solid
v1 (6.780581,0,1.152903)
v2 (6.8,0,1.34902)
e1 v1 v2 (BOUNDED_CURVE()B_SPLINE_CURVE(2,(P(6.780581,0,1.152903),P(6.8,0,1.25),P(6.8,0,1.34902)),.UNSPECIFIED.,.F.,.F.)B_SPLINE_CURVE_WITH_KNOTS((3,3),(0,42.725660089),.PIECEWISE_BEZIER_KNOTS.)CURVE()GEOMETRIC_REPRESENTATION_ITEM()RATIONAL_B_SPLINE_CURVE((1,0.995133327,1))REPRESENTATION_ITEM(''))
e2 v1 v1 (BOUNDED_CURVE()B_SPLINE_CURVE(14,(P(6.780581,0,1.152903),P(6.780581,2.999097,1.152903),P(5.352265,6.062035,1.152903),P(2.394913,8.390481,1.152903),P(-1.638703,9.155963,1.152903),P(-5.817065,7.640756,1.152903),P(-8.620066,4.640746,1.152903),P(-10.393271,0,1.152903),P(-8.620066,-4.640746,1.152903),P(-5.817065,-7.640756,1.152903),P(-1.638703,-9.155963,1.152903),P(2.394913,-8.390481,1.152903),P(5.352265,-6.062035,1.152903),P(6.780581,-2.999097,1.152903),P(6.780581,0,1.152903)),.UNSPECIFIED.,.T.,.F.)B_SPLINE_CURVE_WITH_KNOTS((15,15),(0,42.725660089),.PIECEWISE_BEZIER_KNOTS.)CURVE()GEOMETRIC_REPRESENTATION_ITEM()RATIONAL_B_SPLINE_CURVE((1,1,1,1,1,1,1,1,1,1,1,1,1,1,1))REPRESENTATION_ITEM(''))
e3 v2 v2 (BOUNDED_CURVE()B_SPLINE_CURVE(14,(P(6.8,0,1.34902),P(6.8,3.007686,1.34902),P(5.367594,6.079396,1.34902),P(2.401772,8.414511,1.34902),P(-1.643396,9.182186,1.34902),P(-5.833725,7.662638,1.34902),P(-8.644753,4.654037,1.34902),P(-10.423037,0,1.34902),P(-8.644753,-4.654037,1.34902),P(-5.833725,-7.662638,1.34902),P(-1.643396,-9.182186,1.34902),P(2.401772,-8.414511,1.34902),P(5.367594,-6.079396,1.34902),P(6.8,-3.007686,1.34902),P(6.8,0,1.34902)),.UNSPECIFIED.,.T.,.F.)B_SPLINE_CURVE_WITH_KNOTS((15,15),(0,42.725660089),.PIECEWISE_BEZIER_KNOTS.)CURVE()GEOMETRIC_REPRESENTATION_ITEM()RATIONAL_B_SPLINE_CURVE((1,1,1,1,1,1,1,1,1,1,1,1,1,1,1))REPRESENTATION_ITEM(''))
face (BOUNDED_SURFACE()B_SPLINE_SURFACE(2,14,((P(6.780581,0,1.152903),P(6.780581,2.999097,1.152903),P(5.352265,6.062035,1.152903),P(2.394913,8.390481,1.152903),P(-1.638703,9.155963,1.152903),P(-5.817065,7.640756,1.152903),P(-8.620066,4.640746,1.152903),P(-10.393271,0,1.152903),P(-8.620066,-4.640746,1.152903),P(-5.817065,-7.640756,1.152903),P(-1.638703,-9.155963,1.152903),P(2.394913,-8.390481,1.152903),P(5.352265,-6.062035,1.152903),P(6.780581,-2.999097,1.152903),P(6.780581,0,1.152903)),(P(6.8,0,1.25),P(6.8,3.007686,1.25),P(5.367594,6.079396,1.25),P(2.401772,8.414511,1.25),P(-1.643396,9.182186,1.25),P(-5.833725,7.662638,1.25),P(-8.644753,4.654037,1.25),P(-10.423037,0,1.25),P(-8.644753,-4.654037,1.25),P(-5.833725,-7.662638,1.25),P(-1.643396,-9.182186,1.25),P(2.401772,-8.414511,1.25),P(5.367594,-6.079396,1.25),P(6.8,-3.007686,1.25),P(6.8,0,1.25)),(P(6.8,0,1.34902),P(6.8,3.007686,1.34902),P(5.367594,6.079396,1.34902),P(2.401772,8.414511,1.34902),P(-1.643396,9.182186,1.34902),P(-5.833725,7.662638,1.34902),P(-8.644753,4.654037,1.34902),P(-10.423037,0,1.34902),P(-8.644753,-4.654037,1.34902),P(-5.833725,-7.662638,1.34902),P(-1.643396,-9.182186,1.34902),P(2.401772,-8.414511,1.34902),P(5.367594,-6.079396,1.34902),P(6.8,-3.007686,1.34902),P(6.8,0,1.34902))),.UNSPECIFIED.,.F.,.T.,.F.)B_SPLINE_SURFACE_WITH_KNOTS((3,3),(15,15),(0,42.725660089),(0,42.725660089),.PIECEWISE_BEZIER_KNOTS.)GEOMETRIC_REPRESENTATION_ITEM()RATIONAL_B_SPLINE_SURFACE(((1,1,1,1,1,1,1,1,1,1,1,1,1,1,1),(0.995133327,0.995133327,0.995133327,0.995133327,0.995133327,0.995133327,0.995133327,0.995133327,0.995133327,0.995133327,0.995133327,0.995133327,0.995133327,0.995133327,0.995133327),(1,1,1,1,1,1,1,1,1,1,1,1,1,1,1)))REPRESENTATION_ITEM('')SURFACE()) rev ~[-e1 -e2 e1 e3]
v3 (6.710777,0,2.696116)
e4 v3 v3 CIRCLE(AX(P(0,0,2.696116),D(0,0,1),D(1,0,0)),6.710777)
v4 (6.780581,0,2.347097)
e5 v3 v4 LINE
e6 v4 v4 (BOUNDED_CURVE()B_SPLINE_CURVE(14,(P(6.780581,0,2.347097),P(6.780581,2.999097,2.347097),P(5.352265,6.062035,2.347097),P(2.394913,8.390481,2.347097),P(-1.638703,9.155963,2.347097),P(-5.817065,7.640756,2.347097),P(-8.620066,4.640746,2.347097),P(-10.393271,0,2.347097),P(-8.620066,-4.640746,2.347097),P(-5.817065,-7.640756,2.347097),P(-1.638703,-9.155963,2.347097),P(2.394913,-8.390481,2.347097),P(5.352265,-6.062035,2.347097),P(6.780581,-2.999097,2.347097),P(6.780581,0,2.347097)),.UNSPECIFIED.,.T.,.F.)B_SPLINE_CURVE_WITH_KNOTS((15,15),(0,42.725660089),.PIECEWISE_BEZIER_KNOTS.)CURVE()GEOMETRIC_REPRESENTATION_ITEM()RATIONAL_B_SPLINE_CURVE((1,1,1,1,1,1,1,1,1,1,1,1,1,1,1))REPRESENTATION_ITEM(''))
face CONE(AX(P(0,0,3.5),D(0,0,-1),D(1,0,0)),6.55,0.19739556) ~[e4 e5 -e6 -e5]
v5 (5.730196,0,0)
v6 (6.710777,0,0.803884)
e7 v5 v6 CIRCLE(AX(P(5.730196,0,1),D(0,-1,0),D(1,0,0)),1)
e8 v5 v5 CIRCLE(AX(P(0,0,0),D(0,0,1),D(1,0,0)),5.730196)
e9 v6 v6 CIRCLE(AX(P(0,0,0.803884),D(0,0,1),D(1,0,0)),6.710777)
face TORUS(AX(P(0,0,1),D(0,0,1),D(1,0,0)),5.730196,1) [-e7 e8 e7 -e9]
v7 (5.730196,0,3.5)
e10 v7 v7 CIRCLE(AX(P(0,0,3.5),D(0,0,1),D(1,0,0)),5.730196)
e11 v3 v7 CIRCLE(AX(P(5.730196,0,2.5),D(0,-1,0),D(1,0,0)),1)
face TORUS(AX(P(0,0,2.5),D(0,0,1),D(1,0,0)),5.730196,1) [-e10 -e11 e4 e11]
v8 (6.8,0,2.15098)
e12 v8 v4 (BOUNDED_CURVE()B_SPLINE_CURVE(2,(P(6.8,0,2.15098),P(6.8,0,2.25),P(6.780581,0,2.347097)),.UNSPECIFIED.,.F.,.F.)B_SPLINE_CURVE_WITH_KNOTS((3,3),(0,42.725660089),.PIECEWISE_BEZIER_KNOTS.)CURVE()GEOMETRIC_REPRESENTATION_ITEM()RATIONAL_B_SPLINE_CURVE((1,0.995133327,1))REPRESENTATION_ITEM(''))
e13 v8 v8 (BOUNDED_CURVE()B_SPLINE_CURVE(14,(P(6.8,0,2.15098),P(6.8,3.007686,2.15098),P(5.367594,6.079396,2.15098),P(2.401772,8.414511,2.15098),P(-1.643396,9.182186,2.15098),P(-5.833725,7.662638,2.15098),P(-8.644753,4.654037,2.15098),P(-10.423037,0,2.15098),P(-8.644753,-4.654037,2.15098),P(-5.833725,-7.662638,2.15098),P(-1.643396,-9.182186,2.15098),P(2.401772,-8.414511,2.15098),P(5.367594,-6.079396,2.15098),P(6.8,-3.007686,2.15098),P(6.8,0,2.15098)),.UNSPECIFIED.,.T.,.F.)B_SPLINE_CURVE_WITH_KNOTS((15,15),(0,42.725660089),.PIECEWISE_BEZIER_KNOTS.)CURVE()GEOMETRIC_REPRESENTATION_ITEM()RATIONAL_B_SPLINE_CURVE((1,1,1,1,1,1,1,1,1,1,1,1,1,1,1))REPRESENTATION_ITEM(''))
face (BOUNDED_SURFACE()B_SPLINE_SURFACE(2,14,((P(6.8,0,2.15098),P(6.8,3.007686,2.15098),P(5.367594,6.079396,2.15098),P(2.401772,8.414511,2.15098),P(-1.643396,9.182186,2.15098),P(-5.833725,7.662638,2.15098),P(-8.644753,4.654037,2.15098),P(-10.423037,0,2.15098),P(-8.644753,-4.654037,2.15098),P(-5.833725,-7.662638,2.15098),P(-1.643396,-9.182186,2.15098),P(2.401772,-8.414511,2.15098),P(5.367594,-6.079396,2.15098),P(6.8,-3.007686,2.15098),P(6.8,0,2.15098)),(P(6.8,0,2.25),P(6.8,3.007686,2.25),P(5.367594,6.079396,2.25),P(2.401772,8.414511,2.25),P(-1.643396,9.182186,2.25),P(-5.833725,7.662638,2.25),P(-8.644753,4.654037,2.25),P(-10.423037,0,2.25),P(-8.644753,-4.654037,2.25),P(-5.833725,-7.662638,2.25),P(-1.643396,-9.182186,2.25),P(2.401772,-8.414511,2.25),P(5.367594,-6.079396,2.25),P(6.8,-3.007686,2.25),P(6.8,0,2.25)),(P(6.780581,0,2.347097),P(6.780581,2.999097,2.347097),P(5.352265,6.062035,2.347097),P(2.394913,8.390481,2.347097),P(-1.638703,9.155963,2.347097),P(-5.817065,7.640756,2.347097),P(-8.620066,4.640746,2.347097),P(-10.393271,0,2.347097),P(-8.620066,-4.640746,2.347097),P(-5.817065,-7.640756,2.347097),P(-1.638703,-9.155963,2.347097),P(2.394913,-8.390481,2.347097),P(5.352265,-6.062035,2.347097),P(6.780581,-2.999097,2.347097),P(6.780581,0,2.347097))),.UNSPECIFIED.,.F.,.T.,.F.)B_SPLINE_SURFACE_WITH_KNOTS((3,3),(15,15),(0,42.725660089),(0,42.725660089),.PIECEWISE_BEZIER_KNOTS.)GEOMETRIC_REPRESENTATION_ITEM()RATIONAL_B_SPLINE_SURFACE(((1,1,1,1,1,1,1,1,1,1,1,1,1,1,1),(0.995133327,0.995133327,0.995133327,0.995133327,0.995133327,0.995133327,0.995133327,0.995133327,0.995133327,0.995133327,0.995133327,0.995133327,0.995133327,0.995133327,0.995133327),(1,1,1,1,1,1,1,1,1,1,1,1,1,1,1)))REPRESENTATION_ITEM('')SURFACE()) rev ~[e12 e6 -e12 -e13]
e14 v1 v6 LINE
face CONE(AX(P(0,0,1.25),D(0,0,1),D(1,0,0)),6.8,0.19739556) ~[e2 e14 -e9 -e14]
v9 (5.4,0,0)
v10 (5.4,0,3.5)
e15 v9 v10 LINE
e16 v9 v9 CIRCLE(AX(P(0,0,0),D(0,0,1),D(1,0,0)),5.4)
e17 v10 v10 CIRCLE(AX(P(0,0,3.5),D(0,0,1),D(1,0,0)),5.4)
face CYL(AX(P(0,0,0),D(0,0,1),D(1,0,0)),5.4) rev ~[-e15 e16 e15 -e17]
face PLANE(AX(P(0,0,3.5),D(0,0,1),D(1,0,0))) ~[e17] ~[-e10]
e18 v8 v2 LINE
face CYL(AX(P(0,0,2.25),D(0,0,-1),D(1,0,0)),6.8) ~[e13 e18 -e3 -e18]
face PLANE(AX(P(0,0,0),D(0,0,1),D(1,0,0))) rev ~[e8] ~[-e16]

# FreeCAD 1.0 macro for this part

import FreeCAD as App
import Part
import Sketcher
from FreeCAD import Vector


def edges_at(feature, points):
    """Names of the edges that pass closest to the given points."""
    edges = feature.Shape.Edges
    near = lambda p: min(range(len(edges)), key=lambda i: edges[i].distToShape(Part.Vertex(*p))[0])
    return sorted({f"Edge{near(p) + 1}" for p in points})


def add_polygon(sketch, points):
    """Adds a closed chain of lines whose ends are joined by coincident constraints."""
    first, n = sketch.GeometryCount, len(points)
    for a, b in zip(points, points[1:] + points[:1]):
        sketch.addGeometry(Part.LineSegment(App.Vector(*a, 0), App.Vector(*b, 0)), False)
    for i in range(n):
        sketch.addConstraint(Sketcher.Constraint("Coincident", first + i, 2, first + (i + 1) % n, 1))

doc = App.newDocument("Part")
body = doc.addObject("PartDesign::Body", "Body")

sketch1 = body.newObject("Sketcher::SketchObject", "Sketch")
sketch1.AttachmentSupport = (doc.getObject("XZ_Plane"), [""])
sketch1.MapMode = "FlatFace"
add_polygon(sketch1, [(6.5, 0), (5.4, 0), (5.4, 3.5), (6.5, 3.5), (6.8, 2.2), (6.8, 1.2)])
sketch1.addConstraint([
    Sketcher.Constraint("Horizontal", 0),
    Sketcher.Constraint("Vertical", 1),
    Sketcher.Constraint("Horizontal", 2),
    Sketcher.Constraint("Vertical", 4),
    Sketcher.Constraint("PointOnObject", 0, 2, -1),
    Sketcher.Constraint("Vertical", 2, 2, 5, 2),
    Sketcher.Constraint("Equal", 3, 5),
    Sketcher.Constraint("DistanceY", 4, 2, 4, 1, 1.0),
    Sketcher.Constraint("DistanceY", 1, 1, 1, 2, 3.5),
    Sketcher.Constraint("DistanceX", -1, 1, 0, 2, 5.4),
    Sketcher.Constraint("DistanceX", -1, 1, 3, 2, 6.8),
    Sketcher.Constraint("DistanceX", 2, 2, 3, 2, 0.25),
])
revolution = body.newObject("PartDesign::Revolution", "Revolution")
revolution.Profile = sketch1
revolution.ReferenceAxis = (sketch1, ["V_Axis"])
revolution.Angle = 360
doc.recompute()

fillet = body.newObject("PartDesign::Fillet", "Fillet")
fillet.Base = (revolution, edges_at(revolution, [
    (-6.107, -2.369, 0),
    (-6.34, -2.459, 1.25),
    (-6.34, -2.459, 2.25),
    (-6.107, -2.369, 3.5),
]))
fillet.Radius = 1

doc.recompute()
